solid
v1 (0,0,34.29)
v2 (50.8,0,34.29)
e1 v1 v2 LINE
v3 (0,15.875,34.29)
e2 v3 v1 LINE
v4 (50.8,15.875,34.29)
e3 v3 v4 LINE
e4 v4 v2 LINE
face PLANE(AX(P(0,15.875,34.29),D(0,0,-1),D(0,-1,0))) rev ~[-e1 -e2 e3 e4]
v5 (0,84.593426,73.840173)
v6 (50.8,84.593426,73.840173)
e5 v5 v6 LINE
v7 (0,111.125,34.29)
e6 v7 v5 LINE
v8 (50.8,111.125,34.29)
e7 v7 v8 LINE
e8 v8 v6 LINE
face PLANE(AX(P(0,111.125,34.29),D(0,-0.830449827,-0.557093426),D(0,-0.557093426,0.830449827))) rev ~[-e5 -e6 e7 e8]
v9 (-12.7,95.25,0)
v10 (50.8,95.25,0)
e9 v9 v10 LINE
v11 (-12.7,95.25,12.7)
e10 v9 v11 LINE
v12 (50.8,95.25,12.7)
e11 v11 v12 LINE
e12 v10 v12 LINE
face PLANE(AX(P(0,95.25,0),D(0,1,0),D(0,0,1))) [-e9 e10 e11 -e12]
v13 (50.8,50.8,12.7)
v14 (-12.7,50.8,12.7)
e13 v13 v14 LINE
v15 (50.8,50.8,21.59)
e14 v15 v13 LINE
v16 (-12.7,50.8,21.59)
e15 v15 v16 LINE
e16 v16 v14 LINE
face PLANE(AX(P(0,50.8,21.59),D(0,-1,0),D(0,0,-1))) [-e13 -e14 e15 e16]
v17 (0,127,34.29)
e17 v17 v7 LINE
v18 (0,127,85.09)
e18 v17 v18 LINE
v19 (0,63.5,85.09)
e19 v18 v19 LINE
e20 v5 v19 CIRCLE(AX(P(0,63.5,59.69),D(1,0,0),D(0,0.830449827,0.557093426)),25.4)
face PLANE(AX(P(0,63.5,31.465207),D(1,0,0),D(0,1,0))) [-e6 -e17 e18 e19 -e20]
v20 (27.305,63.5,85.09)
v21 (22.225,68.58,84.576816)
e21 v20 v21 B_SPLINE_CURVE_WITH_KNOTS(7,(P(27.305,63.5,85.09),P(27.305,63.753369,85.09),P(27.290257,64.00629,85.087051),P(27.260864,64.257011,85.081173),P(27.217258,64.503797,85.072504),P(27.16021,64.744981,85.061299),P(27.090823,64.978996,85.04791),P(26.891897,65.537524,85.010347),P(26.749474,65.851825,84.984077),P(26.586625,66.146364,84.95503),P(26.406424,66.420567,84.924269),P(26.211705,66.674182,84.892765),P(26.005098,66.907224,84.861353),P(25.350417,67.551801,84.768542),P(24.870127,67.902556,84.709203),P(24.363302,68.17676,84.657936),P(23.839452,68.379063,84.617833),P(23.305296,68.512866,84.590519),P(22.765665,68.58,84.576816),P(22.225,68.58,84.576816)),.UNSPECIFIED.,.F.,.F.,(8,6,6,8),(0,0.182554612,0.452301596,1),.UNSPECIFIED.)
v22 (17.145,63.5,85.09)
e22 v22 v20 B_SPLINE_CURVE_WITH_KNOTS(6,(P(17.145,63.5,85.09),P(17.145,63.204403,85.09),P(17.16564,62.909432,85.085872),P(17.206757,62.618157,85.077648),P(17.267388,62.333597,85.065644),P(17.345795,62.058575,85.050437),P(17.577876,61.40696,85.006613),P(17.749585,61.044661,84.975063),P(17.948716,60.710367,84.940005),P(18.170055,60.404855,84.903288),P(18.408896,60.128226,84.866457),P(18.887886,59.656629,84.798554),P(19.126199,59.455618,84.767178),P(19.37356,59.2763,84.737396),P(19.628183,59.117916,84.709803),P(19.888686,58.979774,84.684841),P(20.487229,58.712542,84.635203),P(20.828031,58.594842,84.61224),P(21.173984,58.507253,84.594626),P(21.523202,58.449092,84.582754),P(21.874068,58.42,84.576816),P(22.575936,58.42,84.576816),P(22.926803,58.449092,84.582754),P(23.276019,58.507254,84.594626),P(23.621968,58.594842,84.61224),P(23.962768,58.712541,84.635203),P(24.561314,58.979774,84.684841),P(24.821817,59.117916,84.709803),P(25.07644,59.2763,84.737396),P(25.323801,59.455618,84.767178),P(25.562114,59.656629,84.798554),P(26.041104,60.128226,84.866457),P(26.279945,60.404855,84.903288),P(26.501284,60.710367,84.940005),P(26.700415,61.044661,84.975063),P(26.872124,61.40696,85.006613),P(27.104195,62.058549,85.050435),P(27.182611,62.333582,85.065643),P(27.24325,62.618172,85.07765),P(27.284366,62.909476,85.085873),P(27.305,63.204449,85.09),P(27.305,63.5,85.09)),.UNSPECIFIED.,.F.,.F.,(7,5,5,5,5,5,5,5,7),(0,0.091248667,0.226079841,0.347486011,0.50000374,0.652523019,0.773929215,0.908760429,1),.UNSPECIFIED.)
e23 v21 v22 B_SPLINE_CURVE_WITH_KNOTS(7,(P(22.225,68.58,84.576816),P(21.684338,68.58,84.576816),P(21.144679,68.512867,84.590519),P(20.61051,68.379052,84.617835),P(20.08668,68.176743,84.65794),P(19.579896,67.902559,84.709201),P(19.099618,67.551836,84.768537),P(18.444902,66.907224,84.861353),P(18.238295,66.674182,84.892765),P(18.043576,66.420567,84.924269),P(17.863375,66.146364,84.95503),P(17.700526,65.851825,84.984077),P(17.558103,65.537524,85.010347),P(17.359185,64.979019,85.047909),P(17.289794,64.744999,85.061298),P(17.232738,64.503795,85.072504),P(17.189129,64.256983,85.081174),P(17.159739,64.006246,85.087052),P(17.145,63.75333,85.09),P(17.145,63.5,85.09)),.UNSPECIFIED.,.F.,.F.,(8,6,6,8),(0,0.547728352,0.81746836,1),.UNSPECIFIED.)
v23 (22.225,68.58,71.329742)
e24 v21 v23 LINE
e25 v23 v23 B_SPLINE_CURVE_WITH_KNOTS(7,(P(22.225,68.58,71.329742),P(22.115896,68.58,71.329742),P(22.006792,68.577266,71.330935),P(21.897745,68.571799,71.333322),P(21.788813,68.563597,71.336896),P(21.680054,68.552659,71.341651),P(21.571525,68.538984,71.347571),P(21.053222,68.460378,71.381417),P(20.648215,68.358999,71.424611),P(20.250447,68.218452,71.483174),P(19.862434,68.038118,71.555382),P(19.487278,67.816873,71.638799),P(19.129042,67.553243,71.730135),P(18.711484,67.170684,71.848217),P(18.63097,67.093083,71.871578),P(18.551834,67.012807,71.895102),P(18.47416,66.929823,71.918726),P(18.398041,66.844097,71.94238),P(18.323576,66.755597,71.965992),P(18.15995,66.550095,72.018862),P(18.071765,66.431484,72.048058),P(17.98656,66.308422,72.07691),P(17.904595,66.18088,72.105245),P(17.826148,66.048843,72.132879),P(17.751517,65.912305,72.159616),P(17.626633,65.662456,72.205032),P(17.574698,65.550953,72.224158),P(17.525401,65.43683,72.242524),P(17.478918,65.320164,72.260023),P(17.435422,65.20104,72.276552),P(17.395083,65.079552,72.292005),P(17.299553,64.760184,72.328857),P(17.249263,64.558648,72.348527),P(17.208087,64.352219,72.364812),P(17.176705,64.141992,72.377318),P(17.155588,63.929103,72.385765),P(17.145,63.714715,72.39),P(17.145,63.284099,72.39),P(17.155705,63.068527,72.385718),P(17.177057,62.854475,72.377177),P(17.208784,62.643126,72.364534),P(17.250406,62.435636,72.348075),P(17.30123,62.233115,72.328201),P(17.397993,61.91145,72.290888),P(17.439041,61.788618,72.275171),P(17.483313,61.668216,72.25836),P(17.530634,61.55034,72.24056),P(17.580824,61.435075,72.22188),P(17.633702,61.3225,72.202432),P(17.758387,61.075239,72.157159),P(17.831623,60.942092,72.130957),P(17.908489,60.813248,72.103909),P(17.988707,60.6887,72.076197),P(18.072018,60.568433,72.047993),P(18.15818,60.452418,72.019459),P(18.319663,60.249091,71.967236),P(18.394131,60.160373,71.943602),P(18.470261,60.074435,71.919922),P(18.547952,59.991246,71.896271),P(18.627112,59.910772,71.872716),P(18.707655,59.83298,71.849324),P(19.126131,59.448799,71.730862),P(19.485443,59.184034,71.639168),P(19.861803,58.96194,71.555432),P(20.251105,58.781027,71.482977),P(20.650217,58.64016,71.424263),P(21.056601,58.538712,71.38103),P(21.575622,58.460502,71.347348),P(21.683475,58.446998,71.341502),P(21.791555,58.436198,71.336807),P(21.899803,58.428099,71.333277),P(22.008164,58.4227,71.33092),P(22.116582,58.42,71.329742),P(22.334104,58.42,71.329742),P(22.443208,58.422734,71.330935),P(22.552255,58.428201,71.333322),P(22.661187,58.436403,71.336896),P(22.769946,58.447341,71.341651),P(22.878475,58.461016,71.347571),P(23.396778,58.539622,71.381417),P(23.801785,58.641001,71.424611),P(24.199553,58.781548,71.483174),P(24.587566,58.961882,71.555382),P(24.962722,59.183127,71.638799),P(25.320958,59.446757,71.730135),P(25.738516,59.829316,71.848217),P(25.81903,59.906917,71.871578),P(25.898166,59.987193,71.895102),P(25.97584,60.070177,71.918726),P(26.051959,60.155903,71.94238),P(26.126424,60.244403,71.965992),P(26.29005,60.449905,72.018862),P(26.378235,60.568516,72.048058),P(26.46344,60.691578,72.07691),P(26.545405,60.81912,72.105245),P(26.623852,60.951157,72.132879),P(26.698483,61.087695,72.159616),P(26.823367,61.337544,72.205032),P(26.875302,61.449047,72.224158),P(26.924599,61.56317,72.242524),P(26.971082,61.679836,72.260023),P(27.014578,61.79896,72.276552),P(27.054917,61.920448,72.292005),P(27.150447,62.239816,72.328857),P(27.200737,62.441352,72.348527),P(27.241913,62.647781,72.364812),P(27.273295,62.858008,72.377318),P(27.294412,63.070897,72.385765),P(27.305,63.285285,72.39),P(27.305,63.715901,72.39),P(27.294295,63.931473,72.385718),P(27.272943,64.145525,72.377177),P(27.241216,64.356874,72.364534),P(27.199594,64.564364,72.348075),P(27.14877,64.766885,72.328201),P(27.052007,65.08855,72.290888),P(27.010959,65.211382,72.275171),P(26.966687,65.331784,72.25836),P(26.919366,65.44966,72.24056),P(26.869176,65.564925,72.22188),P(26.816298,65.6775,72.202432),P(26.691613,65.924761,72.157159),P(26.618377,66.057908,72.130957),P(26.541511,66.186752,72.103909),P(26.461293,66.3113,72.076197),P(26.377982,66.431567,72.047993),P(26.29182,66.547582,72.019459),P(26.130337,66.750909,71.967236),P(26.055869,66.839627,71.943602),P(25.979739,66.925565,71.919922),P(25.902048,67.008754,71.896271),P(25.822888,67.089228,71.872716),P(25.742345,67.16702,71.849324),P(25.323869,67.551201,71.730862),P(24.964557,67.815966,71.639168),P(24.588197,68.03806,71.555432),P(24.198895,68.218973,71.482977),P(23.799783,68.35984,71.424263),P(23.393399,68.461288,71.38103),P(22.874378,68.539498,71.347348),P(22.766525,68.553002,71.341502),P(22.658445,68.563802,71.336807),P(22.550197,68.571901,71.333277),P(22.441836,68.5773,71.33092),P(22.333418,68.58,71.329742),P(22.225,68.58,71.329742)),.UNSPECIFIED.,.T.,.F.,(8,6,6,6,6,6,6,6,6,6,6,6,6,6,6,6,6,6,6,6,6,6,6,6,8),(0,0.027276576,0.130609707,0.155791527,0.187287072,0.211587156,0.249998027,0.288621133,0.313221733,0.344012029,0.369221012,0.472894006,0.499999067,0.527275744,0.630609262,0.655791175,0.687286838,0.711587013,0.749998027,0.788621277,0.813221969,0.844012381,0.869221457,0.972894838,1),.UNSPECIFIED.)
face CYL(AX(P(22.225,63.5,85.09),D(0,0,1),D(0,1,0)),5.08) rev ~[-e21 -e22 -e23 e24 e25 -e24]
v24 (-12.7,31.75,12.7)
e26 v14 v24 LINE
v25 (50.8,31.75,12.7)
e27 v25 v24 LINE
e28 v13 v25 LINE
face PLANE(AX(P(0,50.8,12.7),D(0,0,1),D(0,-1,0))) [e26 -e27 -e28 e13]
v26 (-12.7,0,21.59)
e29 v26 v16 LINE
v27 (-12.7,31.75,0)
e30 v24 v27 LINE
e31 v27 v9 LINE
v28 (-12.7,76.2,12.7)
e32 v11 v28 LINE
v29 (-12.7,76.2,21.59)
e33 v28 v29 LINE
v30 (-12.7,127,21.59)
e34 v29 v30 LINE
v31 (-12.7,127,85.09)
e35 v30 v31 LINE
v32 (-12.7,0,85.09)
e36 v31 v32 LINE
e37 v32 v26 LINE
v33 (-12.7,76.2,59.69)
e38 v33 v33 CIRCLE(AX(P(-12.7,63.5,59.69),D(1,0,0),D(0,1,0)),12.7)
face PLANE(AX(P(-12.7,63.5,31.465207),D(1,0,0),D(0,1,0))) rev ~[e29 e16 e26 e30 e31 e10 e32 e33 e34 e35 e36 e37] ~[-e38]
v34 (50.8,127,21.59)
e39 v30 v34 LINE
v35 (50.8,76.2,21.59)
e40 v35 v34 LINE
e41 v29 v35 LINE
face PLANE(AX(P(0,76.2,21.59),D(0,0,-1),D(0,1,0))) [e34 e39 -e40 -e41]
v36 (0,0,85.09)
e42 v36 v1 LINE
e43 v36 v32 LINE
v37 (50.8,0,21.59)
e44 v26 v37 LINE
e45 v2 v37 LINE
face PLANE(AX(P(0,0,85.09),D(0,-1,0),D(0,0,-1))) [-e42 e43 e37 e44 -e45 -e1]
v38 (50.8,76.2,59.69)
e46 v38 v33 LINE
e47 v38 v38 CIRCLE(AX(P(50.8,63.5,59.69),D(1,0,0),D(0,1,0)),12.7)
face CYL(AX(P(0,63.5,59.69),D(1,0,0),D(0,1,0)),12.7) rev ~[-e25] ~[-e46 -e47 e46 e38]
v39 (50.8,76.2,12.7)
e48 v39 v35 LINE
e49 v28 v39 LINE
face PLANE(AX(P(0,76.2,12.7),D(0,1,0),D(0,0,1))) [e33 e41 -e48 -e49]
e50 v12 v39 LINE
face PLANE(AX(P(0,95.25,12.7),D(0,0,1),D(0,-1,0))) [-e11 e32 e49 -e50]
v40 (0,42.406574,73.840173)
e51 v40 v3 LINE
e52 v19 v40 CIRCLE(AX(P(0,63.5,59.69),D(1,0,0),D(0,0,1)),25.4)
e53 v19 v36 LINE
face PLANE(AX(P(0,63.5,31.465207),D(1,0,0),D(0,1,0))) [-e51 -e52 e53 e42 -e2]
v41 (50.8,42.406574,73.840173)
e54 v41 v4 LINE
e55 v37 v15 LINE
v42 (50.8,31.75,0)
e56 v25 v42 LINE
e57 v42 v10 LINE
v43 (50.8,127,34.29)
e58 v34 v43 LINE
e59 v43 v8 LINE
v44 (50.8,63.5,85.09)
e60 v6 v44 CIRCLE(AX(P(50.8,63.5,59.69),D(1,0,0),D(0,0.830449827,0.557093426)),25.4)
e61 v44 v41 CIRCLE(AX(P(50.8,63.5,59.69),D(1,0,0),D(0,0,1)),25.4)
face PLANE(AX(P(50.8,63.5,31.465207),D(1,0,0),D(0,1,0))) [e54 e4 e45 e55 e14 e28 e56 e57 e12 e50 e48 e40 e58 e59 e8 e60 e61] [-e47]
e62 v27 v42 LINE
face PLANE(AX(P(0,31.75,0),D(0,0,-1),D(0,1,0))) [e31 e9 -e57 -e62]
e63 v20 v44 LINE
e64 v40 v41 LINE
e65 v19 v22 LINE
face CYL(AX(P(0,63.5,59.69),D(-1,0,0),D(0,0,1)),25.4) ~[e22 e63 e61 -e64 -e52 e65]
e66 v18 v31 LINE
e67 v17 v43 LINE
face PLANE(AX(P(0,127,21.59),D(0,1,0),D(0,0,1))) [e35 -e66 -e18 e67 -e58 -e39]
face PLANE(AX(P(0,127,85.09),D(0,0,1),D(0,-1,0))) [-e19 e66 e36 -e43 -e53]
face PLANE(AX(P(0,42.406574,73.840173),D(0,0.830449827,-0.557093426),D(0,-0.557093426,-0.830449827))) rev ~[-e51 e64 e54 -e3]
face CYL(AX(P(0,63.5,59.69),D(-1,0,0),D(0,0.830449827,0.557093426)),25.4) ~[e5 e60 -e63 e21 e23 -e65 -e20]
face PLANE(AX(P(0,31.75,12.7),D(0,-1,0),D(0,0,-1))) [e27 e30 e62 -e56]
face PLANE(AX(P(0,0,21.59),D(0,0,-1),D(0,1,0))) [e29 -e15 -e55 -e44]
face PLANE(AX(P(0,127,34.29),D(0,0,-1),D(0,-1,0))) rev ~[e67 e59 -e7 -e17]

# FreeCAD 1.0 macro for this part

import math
import FreeCAD as App
import Part
import Sketcher

V = App.Vector
Q = App.Units.Quantity

doc = App.newDocument("Part")
body = doc.addObject("PartDesign::Body", "Body")

# Sketch on XZ plane
sketch1 = body.newObject("Sketcher::SketchObject", "Sketch")
sketch1.AttachmentSupport = (doc.getObject("XZ_Plane"), [""])
sketch1.MapMode = "FlatFace"
sketch1.addGeometry([
    Part.LineSegment(V(31.75, 12.7, 0), V(31.75, 0, 0)),  # 0
    Part.LineSegment(V(31.75, 0, 0), V(95.25, 0, 0)),  # 1
    Part.LineSegment(V(95.25, 0, 0), V(95.25, 12.7, 0)),  # 2
    Part.LineSegment(V(95.25, 12.7, 0), V(76.2, 12.7, 0)),  # 3
    Part.LineSegment(V(76.2, 12.7, 0), V(76.2, 21.59, 0)),  # 4
    Part.LineSegment(V(76.2, 21.59, 0), V(127, 21.59, 0)),  # 5
    Part.LineSegment(V(127, 21.59, 0), V(127, 34.29, 0)),  # 6
    Part.LineSegment(V(127, 34.29, 0), V(111.125, 34.29, 0)),  # 7
    Part.LineSegment(V(111.125, 34.29, 0), V(84.593426, 73.840173, 0)),  # 8
    Part.ArcOfCircle(Part.Circle(V(63.5, 59.69, 0), V(0, 0, 1), 25.4), math.radians(33.855026), math.radians(90)),  # 9
    Part.ArcOfCircle(Part.Circle(V(63.5, 59.69, 0), V(0, 0, 1), 25.4), math.radians(90), math.radians(146.144974)),  # 10
    Part.LineSegment(V(42.406574, 73.840173, 0), V(15.875, 34.29, 0)),  # 11
    Part.LineSegment(V(15.875, 34.29, 0), V(0, 34.29, 0)),  # 12
    Part.LineSegment(V(0, 34.29, 0), V(0, 21.59, 0)),  # 13
    Part.LineSegment(V(0, 21.59, 0), V(50.8, 21.59, 0)),  # 14
    Part.LineSegment(V(50.8, 21.59, 0), V(50.8, 12.7, 0)),  # 15
    Part.LineSegment(V(50.8, 12.7, 0), V(31.75, 12.7, 0)),  # 16
    Part.Circle(V(63.5, 59.69, 0), V(0, 0, 1), 12.7),  # 17
], False)
sketch1.addConstraint([
    Sketcher.Constraint("Coincident", 0, 2, 1, 1),
    Sketcher.Constraint("Coincident", 1, 2, 2, 1),
    Sketcher.Constraint("Coincident", 2, 2, 3, 1),
    Sketcher.Constraint("Coincident", 3, 2, 4, 1),
    Sketcher.Constraint("Coincident", 4, 2, 5, 1),
    Sketcher.Constraint("Coincident", 5, 2, 6, 1),
    Sketcher.Constraint("Coincident", 6, 2, 7, 1),
    Sketcher.Constraint("Coincident", 7, 2, 8, 1),
    Sketcher.Constraint("Tangent", 8, 2, 9, 1),
    Sketcher.Constraint("Tangent", 9, 2, 10, 1),
    Sketcher.Constraint("Tangent", 10, 2, 11, 1),
    Sketcher.Constraint("Coincident", 11, 2, 12, 1),
    Sketcher.Constraint("Coincident", 12, 2, 13, 1),
    Sketcher.Constraint("Coincident", 13, 2, 14, 1),
    Sketcher.Constraint("Coincident", 14, 2, 15, 1),
    Sketcher.Constraint("Coincident", 15, 2, 16, 1),
    Sketcher.Constraint("Coincident", 16, 2, 0, 1),
    Sketcher.Constraint("Vertical", 0),
    Sketcher.Constraint("Horizontal", 1),
    Sketcher.Constraint("Vertical", 2),
    Sketcher.Constraint("Horizontal", 3),
    Sketcher.Constraint("Vertical", 4),
    Sketcher.Constraint("Horizontal", 5),
    Sketcher.Constraint("Vertical", 6),
    Sketcher.Constraint("Horizontal", 7),
    Sketcher.Constraint("Horizontal", 12),
    Sketcher.Constraint("Vertical", 13),
    Sketcher.Constraint("Horizontal", 14),
    Sketcher.Constraint("Vertical", 15),
    Sketcher.Constraint("Horizontal", 16),
    Sketcher.Constraint("Coincident", 17, 3, 9, 3),
    Sketcher.Constraint("Equal", 9, 10),
    Sketcher.Constraint("PointOnObject", 0, 2, -1),
    Sketcher.Constraint("PointOnObject", 12, 2, -2),
    Sketcher.Constraint("Horizontal", 8, 2, 10, 2),
    Sketcher.Constraint("Horizontal", 7, 2, 11, 2),
    Sketcher.Constraint("Horizontal", 5, 2, 13, 2),
    Sketcher.Constraint("Horizontal", 3, 2, 15, 2),
    Sketcher.Constraint("Vertical", 17, 3, 9, 2),
    Sketcher.Constraint("Equal", 7, 12),
    Sketcher.Constraint("Equal", 5, 14),
    Sketcher.Constraint("Equal", 3, 16),
    Sketcher.Constraint("Equal", 2, 6),
    Sketcher.Constraint("Diameter", 17, Q("1 in")),
    Sketcher.Constraint("Radius", 9, Q("1 in")),
    Sketcher.Constraint("DistanceX", 5, 1, 5, 2, Q("2 in")),
    Sketcher.Constraint("DistanceX", 1, 1, 1, 2, Q("2.5 in")),
    Sketcher.Constraint("DistanceY", 0, 2, 0, 1, Q("0.5 in")),
    Sketcher.Constraint("DistanceX", -1, 1, 3, 2, Q("3 in")),
    Sketcher.Constraint("DistanceY", 11, 2, 9, 3, Q("1 in")),
    Sketcher.Constraint("DistanceY", 4, 1, 4, 2, Q("0.35 in")),
    Sketcher.Constraint("DistanceX", 7, 2, 7, 1, Q("0.625 in")),
])
pad1 = body.newObject("PartDesign::Pad", "Pad")
pad1.Profile = sketch1
pad1.Length = Q("2 in")

# Sketch on XZ plane
sketch2 = body.newObject("Sketcher::SketchObject", "Sketch001")
sketch2.AttachmentSupport = (doc.getObject("XZ_Plane"), [""])
sketch2.MapMode = "FlatFace"
sketch2.addGeometry([
    Part.LineSegment(V(31.75, 12.7, 0), V(31.75, 0, 0)),  # 0
    Part.LineSegment(V(31.75, 0, 0), V(95.25, 0, 0)),  # 1
    Part.LineSegment(V(95.25, 0, 0), V(95.25, 12.7, 0)),  # 2
    Part.LineSegment(V(95.25, 12.7, 0), V(76.2, 12.7, 0)),  # 3
    Part.LineSegment(V(76.2, 12.7, 0), V(76.2, 21.59, 0)),  # 4
    Part.LineSegment(V(76.2, 21.59, 0), V(127, 21.59, 0)),  # 5
    Part.LineSegment(V(127, 21.59, 0), V(127, 85.09, 0)),  # 6
    Part.LineSegment(V(127, 85.09, 0), V(0, 85.09, 0)),  # 7
    Part.LineSegment(V(0, 85.09, 0), V(0, 21.59, 0)),  # 8
    Part.LineSegment(V(0, 21.59, 0), V(50.8, 21.59, 0)),  # 9
    Part.LineSegment(V(50.8, 21.59, 0), V(50.8, 12.7, 0)),  # 10
    Part.LineSegment(V(50.8, 12.7, 0), V(31.75, 12.7, 0)),  # 11
    Part.Circle(V(63.5, 59.69, 0), V(0, 0, 1), 12.7),  # 12
], False)
sketch2.addConstraint([
    Sketcher.Constraint("Coincident", 0, 2, 1, 1),
    Sketcher.Constraint("Coincident", 1, 2, 2, 1),
    Sketcher.Constraint("Coincident", 2, 2, 3, 1),
    Sketcher.Constraint("Coincident", 3, 2, 4, 1),
    Sketcher.Constraint("Coincident", 4, 2, 5, 1),
    Sketcher.Constraint("Coincident", 5, 2, 6, 1),
    Sketcher.Constraint("Coincident", 6, 2, 7, 1),
    Sketcher.Constraint("Coincident", 7, 2, 8, 1),
    Sketcher.Constraint("Coincident", 8, 2, 9, 1),
    Sketcher.Constraint("Coincident", 9, 2, 10, 1),
    Sketcher.Constraint("Coincident", 10, 2, 11, 1),
    Sketcher.Constraint("Coincident", 11, 2, 0, 1),
    Sketcher.Constraint("Vertical", 0),
    Sketcher.Constraint("Horizontal", 1),
    Sketcher.Constraint("Vertical", 2),
    Sketcher.Constraint("Horizontal", 3),
    Sketcher.Constraint("Vertical", 4),
    Sketcher.Constraint("Horizontal", 5),
    Sketcher.Constraint("Vertical", 6),
    Sketcher.Constraint("Horizontal", 7),
    Sketcher.Constraint("Vertical", 8),
    Sketcher.Constraint("Horizontal", 9),
    Sketcher.Constraint("Vertical", 10),
    Sketcher.Constraint("Horizontal", 11),
    Sketcher.Constraint("PointOnObject", 0, 2, -1),
    Sketcher.Constraint("PointOnObject", 7, 2, -2),
    Sketcher.Constraint("Horizontal", 5, 2, 8, 2),
    Sketcher.Constraint("Horizontal", 3, 2, 10, 2),
    Sketcher.Constraint("Equal", 5, 9),
    Sketcher.Constraint("Equal", 3, 11),
    Sketcher.Constraint("Equal", 1, 6),
    Sketcher.Constraint("Diameter", 12, Q("1 in")),
    Sketcher.Constraint("DistanceX", 5, 1, 5, 2, Q("2 in")),
    Sketcher.Constraint("DistanceX", 7, 2, 7, 1, Q("5 in")),
    Sketcher.Constraint("DistanceX", 1, 1, 1, 2, Q("2.5 in")),
    Sketcher.Constraint("DistanceY", 0, 2, 0, 1, Q("0.5 in")),
    Sketcher.Constraint("DistanceY", 12, 3, 6, 2, Q("1 in")),
    Sketcher.Constraint("DistanceY", 4, 1, 4, 2, Q("0.35 in")),
    Sketcher.Constraint("DistanceX", -1, 1, 12, 3, Q("2.5 in")),
])
pad2 = body.newObject("PartDesign::Pad", "Pad001")
pad2.Profile = sketch2
pad2.Length = Q("0.5 in")
pad2.Reversed = True

# Sketch on XY plane
sketch3 = body.newObject("Sketcher::SketchObject", "Sketch002")
sketch3.AttachmentSupport = (doc.getObject("XY_Plane"), [""])
sketch3.MapMode = "FlatFace"
sketch3.AttachmentOffset = App.Placement(V(0, 0, 3.35 * 25.4), App.Rotation())
sketch3.addGeometry(Part.Circle(V(63.5, -22.225, 0), V(0, 0, 1), 5.08), False)
sketch3.addConstraint([
    Sketcher.Constraint("Diameter", 0, Q("0.4 in")),
    Sketcher.Constraint("DistanceX", -1, 1, 0, 3, Q("2.5 in")),
    Sketcher.Constraint("DistanceY", 0, 3, -1, 1, Q("0.875 in")),
])
pocket1 = body.newObject("PartDesign::Pocket", "Pocket")
pocket1.Profile = sketch3
pocket1.Length = 13.761258
body2 = doc.addObject("PartDesign::Body", "Body001")
doc.recompute()

body.Placement = App.Placement(V(0, 0, 0), App.Rotation(V(0, 0, 1), 90))
boolean = body2.newObject("PartDesign::Boolean", "Boolean")
boolean.Type = "Fuse"
boolean.addObjects([body])

doc.recompute()
